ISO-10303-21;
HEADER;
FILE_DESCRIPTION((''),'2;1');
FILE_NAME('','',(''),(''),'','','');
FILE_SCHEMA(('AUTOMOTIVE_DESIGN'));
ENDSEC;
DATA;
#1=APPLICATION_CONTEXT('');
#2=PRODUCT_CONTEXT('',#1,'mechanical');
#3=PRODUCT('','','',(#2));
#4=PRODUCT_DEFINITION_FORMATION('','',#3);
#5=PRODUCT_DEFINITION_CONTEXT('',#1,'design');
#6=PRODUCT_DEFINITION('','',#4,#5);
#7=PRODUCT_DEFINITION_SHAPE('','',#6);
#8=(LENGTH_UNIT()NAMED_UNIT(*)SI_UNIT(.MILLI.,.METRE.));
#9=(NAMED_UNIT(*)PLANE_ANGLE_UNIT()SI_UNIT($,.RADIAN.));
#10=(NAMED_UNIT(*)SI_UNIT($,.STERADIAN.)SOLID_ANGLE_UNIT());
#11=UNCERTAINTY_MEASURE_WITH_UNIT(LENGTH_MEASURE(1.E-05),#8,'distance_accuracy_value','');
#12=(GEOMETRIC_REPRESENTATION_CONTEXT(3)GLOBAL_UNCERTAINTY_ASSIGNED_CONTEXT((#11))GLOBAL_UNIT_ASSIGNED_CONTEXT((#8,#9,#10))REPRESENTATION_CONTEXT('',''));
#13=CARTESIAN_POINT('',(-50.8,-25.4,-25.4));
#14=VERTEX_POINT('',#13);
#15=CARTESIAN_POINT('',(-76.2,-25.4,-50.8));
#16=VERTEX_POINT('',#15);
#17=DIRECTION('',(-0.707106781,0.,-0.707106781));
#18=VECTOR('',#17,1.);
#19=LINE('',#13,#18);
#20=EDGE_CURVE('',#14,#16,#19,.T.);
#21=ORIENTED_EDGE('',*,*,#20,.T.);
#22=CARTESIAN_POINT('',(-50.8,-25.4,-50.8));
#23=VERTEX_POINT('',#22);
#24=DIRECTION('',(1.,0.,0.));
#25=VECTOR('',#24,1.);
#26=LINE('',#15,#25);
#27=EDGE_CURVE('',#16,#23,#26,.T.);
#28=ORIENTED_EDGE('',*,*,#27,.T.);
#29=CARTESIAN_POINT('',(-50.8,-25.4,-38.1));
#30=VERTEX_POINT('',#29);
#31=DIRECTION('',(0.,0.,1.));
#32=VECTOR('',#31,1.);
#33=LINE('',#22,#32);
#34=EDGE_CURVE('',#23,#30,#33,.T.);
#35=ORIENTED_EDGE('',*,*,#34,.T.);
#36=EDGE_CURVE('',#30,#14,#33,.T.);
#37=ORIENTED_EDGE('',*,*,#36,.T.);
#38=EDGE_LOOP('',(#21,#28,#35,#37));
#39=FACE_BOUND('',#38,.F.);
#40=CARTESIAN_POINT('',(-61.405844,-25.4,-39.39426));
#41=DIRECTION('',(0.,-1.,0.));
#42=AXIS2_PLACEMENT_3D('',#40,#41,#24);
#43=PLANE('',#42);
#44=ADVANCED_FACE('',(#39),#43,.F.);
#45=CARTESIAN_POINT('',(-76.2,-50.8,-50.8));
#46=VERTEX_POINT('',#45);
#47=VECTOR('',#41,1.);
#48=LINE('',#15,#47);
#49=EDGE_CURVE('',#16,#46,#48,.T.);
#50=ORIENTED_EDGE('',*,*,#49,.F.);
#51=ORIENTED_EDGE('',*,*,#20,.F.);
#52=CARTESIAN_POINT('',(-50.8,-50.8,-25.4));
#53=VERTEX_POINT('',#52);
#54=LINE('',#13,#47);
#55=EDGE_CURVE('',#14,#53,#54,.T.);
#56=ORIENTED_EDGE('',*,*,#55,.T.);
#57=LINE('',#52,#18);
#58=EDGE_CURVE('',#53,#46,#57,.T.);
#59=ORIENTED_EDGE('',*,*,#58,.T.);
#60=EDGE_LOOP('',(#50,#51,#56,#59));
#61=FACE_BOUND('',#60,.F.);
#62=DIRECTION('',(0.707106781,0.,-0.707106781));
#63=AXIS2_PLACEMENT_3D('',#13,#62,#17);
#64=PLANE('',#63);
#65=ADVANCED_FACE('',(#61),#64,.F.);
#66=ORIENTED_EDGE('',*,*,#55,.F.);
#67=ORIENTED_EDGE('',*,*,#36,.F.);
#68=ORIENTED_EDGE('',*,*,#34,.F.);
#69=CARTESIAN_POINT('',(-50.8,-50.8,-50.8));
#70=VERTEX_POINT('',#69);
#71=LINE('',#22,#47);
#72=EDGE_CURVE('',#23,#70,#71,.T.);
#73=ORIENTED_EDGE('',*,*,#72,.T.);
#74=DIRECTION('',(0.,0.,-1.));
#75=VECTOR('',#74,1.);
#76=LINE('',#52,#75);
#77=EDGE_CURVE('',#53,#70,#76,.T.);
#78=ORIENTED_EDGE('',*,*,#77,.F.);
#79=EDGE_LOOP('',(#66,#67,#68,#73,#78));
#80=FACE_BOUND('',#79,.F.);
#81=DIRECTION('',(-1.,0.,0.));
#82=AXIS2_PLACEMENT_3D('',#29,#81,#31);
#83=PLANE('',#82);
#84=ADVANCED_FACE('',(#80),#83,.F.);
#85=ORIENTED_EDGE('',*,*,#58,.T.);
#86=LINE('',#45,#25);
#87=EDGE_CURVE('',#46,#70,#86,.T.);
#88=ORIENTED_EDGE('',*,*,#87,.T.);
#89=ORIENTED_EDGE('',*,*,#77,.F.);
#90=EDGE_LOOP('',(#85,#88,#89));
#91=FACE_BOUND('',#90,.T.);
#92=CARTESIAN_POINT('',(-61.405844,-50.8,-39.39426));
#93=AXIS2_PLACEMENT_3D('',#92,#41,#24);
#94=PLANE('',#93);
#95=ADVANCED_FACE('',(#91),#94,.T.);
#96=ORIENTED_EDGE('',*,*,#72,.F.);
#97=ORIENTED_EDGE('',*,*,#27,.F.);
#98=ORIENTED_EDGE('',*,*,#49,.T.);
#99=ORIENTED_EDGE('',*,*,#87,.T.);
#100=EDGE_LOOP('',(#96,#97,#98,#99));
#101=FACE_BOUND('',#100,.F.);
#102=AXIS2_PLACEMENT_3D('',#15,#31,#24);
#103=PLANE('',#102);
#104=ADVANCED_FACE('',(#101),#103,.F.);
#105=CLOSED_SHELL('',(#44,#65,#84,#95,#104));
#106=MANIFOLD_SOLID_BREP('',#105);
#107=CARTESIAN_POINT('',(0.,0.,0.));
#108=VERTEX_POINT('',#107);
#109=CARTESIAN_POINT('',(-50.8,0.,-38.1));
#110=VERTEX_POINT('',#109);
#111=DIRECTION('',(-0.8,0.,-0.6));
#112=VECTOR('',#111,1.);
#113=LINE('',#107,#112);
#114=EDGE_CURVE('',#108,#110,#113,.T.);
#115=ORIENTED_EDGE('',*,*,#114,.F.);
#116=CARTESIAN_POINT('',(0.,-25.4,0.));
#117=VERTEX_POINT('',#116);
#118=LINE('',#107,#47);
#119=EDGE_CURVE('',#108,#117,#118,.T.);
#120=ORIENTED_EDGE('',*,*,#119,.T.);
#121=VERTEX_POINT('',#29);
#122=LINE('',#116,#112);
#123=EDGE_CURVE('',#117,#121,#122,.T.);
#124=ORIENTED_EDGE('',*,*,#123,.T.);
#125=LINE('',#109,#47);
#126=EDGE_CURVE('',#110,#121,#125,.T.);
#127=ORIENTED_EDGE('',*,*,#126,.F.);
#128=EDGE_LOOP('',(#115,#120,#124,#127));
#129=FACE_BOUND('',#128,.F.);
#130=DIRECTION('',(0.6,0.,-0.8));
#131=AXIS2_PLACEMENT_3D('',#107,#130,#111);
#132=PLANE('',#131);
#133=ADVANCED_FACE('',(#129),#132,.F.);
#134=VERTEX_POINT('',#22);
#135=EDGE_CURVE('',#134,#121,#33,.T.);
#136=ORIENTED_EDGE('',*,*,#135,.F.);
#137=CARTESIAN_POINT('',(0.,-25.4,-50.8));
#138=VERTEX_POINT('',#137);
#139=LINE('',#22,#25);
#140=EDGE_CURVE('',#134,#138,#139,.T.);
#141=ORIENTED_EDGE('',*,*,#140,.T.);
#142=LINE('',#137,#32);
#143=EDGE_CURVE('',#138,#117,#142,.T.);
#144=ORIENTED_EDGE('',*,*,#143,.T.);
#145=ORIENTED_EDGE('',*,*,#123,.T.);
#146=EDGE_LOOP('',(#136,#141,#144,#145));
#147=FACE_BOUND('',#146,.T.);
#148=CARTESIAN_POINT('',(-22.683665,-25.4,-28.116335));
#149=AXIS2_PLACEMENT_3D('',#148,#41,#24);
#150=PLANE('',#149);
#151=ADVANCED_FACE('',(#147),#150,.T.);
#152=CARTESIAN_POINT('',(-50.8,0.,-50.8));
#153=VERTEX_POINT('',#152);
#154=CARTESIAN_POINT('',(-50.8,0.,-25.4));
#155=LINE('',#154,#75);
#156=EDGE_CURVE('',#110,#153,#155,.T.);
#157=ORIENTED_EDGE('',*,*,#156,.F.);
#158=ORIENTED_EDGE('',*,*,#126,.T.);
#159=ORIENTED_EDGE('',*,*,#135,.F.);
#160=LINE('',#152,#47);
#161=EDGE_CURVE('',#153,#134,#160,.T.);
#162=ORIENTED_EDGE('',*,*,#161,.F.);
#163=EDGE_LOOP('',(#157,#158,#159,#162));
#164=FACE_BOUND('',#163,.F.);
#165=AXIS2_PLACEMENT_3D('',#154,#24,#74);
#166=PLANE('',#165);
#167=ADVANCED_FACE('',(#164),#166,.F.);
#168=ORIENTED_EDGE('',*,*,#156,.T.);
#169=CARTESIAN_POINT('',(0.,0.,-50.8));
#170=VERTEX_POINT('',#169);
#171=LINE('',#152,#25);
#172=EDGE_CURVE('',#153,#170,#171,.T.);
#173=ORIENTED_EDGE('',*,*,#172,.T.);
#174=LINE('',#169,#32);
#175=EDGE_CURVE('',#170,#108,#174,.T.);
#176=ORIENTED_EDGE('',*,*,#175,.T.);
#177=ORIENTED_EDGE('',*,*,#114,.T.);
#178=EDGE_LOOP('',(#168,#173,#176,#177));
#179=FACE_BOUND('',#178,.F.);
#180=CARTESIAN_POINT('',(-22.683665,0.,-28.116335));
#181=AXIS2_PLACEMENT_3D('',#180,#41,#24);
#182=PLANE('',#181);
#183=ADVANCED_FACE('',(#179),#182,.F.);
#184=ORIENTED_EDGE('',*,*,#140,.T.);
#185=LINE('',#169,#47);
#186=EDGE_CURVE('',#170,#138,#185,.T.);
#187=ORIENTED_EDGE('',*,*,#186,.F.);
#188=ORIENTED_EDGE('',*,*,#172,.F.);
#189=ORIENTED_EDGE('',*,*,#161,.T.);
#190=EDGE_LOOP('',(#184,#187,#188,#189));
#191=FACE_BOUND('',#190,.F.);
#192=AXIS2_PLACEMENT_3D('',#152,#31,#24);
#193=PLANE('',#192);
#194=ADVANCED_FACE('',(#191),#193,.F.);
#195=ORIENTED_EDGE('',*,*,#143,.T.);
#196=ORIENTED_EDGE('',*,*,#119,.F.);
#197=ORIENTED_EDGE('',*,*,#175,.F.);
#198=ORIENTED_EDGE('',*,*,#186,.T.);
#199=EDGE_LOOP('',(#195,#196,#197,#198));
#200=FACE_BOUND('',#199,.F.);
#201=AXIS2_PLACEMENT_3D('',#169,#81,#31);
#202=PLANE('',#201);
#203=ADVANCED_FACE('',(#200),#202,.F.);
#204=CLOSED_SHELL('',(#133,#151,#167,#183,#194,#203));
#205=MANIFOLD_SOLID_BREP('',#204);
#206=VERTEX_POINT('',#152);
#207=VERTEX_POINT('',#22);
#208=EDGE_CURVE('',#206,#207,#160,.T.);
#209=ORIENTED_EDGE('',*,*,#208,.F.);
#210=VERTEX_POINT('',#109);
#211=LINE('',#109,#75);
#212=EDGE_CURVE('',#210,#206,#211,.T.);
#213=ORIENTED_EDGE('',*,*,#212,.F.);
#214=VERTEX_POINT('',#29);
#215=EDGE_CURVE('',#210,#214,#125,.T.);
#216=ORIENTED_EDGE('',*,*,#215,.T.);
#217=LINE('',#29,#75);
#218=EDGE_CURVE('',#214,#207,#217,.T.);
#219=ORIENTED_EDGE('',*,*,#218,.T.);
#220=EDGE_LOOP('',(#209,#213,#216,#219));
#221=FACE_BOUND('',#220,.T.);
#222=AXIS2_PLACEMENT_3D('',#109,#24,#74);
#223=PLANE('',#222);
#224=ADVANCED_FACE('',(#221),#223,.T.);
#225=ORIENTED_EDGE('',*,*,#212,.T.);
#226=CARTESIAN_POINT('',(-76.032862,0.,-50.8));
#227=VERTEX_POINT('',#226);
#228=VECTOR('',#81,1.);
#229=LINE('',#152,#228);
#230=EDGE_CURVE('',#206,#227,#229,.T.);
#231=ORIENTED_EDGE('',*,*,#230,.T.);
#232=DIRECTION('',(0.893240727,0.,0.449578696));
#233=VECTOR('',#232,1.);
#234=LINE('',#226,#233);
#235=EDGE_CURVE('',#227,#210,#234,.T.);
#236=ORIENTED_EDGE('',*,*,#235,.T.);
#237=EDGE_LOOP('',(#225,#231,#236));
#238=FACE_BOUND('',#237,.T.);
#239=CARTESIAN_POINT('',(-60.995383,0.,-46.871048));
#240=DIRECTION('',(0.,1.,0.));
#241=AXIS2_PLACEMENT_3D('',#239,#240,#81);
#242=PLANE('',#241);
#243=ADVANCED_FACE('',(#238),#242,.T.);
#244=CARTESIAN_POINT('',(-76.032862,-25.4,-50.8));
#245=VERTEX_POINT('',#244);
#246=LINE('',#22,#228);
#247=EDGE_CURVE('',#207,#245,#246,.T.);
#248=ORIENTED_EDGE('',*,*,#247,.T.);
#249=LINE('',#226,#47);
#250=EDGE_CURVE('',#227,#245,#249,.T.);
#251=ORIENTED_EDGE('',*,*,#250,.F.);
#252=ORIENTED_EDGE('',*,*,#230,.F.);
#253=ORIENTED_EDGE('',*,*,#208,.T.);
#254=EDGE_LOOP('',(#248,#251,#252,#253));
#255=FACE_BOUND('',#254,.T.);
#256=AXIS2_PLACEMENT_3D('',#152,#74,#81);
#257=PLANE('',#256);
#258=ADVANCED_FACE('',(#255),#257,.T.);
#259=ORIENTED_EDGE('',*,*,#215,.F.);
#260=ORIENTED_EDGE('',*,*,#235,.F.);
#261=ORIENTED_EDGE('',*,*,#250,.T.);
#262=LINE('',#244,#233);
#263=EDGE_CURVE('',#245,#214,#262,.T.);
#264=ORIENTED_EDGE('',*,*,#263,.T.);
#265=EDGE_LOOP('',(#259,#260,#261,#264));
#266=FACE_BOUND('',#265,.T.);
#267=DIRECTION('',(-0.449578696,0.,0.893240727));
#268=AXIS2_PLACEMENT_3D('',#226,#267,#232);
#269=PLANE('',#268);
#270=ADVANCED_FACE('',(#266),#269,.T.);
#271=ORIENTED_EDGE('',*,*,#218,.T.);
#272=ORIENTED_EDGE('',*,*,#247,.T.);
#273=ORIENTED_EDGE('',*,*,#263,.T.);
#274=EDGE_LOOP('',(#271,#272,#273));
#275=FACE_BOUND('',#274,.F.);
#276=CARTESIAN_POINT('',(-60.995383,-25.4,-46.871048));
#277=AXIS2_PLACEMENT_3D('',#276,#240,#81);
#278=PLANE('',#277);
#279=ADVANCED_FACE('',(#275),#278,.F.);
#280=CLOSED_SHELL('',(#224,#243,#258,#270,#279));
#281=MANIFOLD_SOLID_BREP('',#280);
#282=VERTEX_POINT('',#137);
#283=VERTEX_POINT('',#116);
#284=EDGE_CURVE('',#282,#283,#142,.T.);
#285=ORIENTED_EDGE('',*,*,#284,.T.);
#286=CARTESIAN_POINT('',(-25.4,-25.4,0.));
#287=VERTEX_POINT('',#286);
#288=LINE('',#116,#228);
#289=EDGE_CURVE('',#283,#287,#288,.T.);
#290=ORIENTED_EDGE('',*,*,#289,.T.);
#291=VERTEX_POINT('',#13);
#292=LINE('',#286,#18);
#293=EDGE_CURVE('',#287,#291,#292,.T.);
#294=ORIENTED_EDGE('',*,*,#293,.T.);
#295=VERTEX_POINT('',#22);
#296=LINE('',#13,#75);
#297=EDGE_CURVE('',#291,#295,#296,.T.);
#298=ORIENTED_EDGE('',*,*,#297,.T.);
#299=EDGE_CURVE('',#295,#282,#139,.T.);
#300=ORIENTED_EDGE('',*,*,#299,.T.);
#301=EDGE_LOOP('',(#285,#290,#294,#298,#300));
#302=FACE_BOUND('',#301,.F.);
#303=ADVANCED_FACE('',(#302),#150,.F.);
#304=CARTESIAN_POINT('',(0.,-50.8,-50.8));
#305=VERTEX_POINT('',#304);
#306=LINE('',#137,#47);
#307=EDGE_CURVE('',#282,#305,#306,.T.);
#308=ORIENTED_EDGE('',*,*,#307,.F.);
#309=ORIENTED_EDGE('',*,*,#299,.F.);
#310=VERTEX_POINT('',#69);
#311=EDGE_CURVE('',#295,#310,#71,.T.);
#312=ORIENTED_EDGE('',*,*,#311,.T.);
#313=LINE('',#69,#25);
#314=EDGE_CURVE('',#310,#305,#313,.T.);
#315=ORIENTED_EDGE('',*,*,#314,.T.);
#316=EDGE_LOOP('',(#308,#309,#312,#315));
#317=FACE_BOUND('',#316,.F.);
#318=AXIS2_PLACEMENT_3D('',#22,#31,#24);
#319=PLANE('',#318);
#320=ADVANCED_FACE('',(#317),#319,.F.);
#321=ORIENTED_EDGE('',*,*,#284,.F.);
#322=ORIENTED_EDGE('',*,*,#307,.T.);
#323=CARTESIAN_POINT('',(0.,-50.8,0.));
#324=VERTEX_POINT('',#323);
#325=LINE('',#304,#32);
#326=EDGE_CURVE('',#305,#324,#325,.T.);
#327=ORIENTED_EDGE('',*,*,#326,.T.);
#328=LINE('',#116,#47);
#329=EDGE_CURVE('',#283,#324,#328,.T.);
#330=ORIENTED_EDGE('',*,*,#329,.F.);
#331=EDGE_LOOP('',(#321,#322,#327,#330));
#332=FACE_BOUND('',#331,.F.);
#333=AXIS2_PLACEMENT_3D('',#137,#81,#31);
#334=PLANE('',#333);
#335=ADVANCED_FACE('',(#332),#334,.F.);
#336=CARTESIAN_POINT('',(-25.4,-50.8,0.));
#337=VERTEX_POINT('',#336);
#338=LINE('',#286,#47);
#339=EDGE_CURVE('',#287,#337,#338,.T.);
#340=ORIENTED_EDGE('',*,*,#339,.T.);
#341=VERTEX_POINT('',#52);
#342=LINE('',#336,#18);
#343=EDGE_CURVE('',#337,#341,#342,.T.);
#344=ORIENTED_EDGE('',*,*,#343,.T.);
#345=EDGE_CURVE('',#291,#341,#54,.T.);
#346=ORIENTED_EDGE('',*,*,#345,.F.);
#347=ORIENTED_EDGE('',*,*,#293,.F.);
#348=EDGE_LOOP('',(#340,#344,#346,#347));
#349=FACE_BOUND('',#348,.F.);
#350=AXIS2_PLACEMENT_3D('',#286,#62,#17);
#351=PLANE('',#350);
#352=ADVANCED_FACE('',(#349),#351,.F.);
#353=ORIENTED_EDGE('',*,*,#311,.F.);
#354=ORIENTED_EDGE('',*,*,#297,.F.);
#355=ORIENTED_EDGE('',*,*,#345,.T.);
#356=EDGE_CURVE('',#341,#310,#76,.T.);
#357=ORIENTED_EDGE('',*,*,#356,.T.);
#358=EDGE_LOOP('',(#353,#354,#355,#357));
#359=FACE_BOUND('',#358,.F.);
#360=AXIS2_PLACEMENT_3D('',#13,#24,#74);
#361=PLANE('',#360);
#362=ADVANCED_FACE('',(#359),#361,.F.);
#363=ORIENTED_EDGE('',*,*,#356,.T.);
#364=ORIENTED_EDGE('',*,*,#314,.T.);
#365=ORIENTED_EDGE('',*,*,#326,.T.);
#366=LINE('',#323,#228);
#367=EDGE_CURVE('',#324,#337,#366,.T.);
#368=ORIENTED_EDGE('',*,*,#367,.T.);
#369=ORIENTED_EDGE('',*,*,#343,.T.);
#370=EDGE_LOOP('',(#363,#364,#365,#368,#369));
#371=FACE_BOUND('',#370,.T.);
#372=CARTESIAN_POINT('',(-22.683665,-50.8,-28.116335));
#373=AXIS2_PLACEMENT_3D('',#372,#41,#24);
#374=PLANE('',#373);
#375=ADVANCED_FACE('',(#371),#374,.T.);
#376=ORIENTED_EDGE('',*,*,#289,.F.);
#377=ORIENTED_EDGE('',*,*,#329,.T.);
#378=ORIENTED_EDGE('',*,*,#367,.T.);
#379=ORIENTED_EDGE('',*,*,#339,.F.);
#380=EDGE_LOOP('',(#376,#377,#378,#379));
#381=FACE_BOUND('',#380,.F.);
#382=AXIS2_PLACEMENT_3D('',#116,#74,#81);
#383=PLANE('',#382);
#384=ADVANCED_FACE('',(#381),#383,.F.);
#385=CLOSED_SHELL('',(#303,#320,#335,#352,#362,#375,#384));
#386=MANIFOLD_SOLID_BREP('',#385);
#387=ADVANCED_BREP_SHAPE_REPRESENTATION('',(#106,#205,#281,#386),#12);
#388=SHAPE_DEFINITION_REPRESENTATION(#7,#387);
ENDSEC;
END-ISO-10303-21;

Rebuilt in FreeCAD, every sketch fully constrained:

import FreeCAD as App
import Part
import Sketcher
Q = App.Units.Quantity


def add_polygon(sketch, points):
    """Adds a closed chain of lines whose ends are joined by coincident constraints."""
    first, n = sketch.GeometryCount, len(points)
    for a, b in zip(points, points[1:] + points[:1]):
        sketch.addGeometry(Part.LineSegment(App.Vector(*a, 0), App.Vector(*b, 0)), False)
    for i in range(n):
        sketch.addConstraint(Sketcher.Constraint("Coincident", first + i, 2, first + (i + 1) % n, 1))

doc = App.newDocument("Part")
body = doc.addObject("PartDesign::Body", "Body")

sketch1 = doc.addObject("Sketcher::SketchObject", "Sketch")
body.addObject(sketch1)
sketch1.AttachmentSupport = (doc.XZ_Plane, [""])
sketch1.MapMode = "FlatFace"
add_polygon(sketch1, [(0, -51), (0, 0), (-25, 0), (-51, -25), (-51, -51)])
sketch1.addConstraint([
    Sketcher.Constraint("Vertical", 0),
    Sketcher.Constraint("Horizontal", 1),
    Sketcher.Constraint("Vertical", 3),
    Sketcher.Constraint("Horizontal", 4),
    Sketcher.Constraint("Coincident", 0, 2, -1, 1),
    Sketcher.Constraint("Equal", 4, 0),
    Sketcher.Constraint("Equal", 1, 3),
    Sketcher.Constraint("DistanceX", 1, 2, 1, 1, Q("1 in")),
    Sketcher.Constraint("DistanceX", 4, 1, 4, 2, Q("2 in")),
])
pad1 = doc.addObject("PartDesign::Pad", "Pad")
body.addObject(pad1)
pad1.Profile = sketch1
pad1.Length = Q("1 in")
body2 = doc.addObject("PartDesign::Body", "Body001")

sketch2 = doc.addObject("Sketcher::SketchObject", "Sketch001")
body2.addObject(sketch2)
sketch2.AttachmentSupport = (doc.getObject("XZ_Plane001"), [""])
sketch2.MapMode = "FlatFace"
sketch2.AttachmentOffset = App.Placement(App.Vector(0, 0, 1 * 25.4), App.Rotation())
add_polygon(sketch2, [(-76, -51), (-51, -51), (-51, -38)])
sketch2.addConstraint([
    Sketcher.Constraint("Horizontal", 0),
    Sketcher.Constraint("Vertical", 1),
    Sketcher.Constraint("DistanceX", 0, 1, 0, 2, Q("1 in")),
    Sketcher.Constraint("DistanceY", 1, 1, 1, 2, Q("0.5 in")),
    Sketcher.Constraint("DistanceX", 0, 2, -1, 1, Q("2 in")),
    Sketcher.Constraint("DistanceY", 0, 2, -1, 1, Q("2 in")),
])
pad2 = doc.addObject("PartDesign::Pad", "Pad001")
body2.addObject(pad2)
pad2.Profile = sketch2
pad2.Length = Q("1 in")
body.AllowCompound = True
doc.recompute()

boolean = doc.addObject("PartDesign::Boolean", "Boolean")
body.addObject(boolean)
boolean.Type = "Fuse"
boolean.addObjects([body2])

sketch3 = doc.addObject("Sketcher::SketchObject", "Sketch002")
body.addObject(sketch3)
sketch3.AttachmentSupport = (doc.XZ_Plane, [""])
sketch3.MapMode = "FlatFace"
sketch3.AttachmentOffset = App.Placement(App.Vector(0, 0, 1 * 25.4), App.Rotation())
add_polygon(sketch3, [(-76, -51), (-51, -38), (-51, -25)])
sketch3.addConstraint([
    Sketcher.Constraint("Vertical", 1),
    Sketcher.Constraint("DistanceY", 1, 1, 1, 2, Q("0.5 in")),
    Sketcher.Constraint("DistanceX", 0, 2, -1, 1, Q("2 in")),
    Sketcher.Constraint("DistanceY", 1, 2, -1, 1, Q("1 in")),
    Sketcher.Constraint("DistanceX", 2, 2, -1, 1, Q("3 in")),
    Sketcher.Constraint("DistanceY", 2, 2, -1, 1, Q("2 in")),
])
pad3 = doc.addObject("PartDesign::Pad", "Pad002")
body.addObject(pad3)
pad3.Profile = sketch3
pad3.Length = Q("1 in")

sketch4 = doc.addObject("Sketcher::SketchObject", "Sketch003")
body.addObject(sketch4)
sketch4.AttachmentSupport = (doc.XZ_Plane, [""])
sketch4.MapMode = "FlatFace"
add_polygon(sketch4, [(0, 0), (-51, -38), (-51, -25), (-25, 0)])
sketch4.addConstraint([
    Sketcher.Constraint("Vertical", 1),
    Sketcher.Constraint("Horizontal", 3),
    Sketcher.Constraint("Coincident", 3, 2, -1, 1),
    Sketcher.Constraint("DistanceX", 3, 1, 3, 2, Q("1 in")),
    Sketcher.Constraint("DistanceY", 1, 1, 1, 2, Q("0.5 in")),
    Sketcher.Constraint("DistanceX", 0, 2, -1, 1, Q("2 in")),
    Sketcher.Constraint("DistanceY", 1, 2, -1, 1, Q("1 in")),
])
pocket1 = doc.addObject("PartDesign::Pocket", "Pocket")
body.addObject(pocket1)
pocket1.Profile = sketch4
pocket1.Length = Q("1 in")
pocket1.Reversed = True
body3 = doc.addObject("PartDesign::Body", "Body002")

sketch5 = doc.addObject("Sketcher::SketchObject", "Sketch004")
body3.addObject(sketch5)
sketch5.AttachmentSupport = (doc.getObject("XZ_Plane002"), [""])
sketch5.MapMode = "FlatFace"
sketch5.AttachmentOffset = App.Placement(App.Vector(0, 0, 1 * 25.4), App.Rotation())
add_polygon(sketch5, [(-25, 0), (-51, -25), (-51, -51), (0, -51), (0, 0)])
sketch5.addConstraint([
    Sketcher.Constraint("Vertical", 1),
    Sketcher.Constraint("Horizontal", 2),
    Sketcher.Constraint("Vertical", 3),
    Sketcher.Constraint("Horizontal", 4),
    Sketcher.Constraint("Coincident", 3, 2, -1, 1),
    Sketcher.Constraint("Equal", 4, 1),
    Sketcher.Constraint("Equal", 2, 3),
    Sketcher.Constraint("DistanceX", 2, 1, 2, 2, Q("2 in")),
    Sketcher.Constraint("DistanceX", 4, 2, 4, 1, Q("1 in")),
])
pad4 = doc.addObject("PartDesign::Pad", "Pad003")
body3.addObject(pad4)
pad4.Profile = sketch5
pad4.Length = Q("1 in")
body4 = doc.addObject("PartDesign::Body", "Body003")

sketch6 = doc.addObject("Sketcher::SketchObject", "Sketch005")
body4.addObject(sketch6)
sketch6.AttachmentSupport = (doc.getObject("XZ_Plane003"), [""])
sketch6.MapMode = "FlatFace"
add_polygon(sketch6, [(-76, -51), (-51, -38), (-51, -51)])
sketch6.addConstraint([
    Sketcher.Constraint("Vertical", 1),
    Sketcher.Constraint("Horizontal", 2),
    Sketcher.Constraint("DistanceY", 1, 2, 1, 1, Q("0.5 in")),
    Sketcher.Constraint("DistanceX", 0, 2, -1, 1, Q("2 in")),
    Sketcher.Constraint("DistanceY", 1, 2, -1, 1, Q("2 in")),
    Sketcher.Constraint("Distance", 0, Q("28.248669 mm")),
])
pad5 = doc.addObject("PartDesign::Pad", "Pad004")
body4.addObject(pad5)
pad5.Profile = sketch6
pad5.Length = Q("1 in")

doc.recompute()
